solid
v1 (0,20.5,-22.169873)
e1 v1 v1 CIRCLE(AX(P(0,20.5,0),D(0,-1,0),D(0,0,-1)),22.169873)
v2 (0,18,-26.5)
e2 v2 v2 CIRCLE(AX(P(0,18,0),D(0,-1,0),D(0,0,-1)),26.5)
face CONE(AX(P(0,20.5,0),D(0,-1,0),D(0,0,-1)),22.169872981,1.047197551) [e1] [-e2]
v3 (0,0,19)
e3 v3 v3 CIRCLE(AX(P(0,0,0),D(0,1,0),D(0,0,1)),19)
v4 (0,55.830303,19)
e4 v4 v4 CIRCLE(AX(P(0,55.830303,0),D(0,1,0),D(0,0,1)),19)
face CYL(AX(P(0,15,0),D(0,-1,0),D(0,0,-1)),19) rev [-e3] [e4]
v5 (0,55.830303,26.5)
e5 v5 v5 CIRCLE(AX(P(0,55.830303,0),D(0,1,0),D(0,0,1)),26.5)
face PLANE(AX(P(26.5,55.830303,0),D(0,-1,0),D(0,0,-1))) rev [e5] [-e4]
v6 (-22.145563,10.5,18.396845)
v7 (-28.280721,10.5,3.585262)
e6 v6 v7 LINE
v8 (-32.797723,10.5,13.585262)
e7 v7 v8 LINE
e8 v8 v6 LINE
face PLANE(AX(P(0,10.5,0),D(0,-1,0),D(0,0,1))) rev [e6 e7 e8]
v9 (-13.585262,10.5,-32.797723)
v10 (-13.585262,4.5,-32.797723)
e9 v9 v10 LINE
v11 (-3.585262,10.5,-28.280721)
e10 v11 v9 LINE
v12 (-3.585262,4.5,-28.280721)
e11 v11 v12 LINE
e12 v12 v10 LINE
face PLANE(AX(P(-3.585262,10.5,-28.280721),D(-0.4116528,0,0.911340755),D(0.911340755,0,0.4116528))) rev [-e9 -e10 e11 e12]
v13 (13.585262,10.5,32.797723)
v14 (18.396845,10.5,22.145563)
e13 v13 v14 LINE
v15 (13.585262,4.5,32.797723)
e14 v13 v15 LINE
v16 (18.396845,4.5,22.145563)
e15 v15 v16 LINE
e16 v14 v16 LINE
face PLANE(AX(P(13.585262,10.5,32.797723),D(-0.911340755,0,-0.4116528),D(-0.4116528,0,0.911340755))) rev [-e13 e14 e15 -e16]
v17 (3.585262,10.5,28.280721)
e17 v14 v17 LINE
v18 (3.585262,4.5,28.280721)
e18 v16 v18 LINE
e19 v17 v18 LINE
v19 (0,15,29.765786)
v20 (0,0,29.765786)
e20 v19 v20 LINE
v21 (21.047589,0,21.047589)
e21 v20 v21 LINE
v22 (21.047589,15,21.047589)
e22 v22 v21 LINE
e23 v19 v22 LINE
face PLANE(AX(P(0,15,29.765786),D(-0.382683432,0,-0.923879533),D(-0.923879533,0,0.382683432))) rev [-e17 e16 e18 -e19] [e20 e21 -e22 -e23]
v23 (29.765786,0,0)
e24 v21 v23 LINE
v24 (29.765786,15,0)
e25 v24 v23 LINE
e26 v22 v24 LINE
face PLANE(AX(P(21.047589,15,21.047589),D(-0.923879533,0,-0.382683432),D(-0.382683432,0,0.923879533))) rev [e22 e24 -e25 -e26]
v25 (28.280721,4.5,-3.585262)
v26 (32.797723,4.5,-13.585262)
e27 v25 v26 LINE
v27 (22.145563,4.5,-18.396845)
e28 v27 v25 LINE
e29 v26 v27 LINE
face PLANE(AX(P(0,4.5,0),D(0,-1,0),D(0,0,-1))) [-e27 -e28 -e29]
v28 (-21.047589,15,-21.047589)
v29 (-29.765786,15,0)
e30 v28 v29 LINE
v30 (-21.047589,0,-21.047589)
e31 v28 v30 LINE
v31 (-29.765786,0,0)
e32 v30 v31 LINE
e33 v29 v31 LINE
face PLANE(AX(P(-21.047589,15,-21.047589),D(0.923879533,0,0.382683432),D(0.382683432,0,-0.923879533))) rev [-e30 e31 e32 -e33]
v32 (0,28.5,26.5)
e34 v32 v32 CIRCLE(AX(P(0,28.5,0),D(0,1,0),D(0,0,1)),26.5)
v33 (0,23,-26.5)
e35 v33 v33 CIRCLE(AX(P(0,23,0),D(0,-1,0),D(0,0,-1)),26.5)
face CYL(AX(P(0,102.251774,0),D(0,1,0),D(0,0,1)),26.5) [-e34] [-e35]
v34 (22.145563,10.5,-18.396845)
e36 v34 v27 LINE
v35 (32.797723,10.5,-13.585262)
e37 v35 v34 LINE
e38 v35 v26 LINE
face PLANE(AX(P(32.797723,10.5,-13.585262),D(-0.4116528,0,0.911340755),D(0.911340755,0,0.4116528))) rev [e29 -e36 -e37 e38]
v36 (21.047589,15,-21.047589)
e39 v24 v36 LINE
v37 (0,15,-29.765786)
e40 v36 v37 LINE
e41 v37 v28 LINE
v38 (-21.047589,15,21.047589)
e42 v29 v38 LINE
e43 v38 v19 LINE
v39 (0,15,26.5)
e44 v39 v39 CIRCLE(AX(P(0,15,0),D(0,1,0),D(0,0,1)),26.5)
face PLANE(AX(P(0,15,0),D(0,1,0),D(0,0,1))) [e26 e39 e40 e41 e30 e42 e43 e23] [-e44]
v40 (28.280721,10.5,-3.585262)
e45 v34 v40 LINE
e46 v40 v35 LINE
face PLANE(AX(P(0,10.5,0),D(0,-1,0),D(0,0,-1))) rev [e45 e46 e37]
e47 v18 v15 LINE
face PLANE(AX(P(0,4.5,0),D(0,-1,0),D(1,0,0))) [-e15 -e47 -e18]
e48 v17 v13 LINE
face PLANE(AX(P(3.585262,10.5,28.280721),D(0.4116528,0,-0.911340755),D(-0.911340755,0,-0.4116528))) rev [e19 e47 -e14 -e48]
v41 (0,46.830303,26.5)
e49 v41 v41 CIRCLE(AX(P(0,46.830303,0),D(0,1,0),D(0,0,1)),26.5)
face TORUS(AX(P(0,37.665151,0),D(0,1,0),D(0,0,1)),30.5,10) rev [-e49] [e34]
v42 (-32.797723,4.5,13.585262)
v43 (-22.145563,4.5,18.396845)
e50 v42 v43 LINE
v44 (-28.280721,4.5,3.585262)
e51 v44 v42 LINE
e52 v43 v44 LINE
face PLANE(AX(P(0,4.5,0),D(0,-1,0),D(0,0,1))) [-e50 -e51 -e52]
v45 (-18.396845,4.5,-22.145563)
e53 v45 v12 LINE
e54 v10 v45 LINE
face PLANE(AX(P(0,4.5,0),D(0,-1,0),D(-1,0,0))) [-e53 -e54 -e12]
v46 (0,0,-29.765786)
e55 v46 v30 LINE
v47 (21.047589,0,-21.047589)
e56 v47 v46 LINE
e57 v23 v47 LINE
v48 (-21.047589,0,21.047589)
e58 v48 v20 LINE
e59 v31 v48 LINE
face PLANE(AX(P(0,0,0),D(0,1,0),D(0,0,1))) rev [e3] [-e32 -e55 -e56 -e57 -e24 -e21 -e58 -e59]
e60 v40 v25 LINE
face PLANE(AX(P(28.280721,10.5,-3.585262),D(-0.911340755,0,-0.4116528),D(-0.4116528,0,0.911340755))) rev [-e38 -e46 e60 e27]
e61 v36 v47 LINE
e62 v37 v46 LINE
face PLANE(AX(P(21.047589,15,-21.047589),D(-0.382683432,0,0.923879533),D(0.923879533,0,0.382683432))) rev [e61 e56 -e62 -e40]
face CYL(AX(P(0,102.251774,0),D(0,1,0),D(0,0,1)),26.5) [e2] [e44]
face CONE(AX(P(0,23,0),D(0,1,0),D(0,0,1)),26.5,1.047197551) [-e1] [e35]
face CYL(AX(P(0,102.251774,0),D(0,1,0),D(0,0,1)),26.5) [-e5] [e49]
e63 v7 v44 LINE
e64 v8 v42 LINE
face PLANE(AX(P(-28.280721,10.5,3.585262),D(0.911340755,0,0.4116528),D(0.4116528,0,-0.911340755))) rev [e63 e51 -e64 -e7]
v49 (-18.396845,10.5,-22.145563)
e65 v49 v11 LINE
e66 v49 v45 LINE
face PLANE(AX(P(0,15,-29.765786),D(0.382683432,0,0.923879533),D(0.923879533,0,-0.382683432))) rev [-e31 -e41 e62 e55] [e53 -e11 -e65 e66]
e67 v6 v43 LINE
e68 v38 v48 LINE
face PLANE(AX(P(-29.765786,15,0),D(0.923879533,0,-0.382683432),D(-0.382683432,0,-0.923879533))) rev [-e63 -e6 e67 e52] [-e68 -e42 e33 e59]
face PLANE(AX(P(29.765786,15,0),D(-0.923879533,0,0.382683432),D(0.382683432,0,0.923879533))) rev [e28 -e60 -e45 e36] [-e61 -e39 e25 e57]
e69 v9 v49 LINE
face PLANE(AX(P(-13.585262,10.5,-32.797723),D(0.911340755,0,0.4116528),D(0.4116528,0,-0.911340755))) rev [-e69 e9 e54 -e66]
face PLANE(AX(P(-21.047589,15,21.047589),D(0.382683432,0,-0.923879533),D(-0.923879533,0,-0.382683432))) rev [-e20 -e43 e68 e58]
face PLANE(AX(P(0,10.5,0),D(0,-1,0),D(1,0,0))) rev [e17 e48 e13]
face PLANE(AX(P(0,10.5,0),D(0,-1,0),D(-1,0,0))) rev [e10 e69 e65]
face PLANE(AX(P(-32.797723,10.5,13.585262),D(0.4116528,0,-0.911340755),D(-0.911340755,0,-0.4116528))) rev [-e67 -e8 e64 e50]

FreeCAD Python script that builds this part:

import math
import FreeCAD as App
import Part
import Sketcher

V = App.Vector
Q = App.Units.Quantity


def add_polygon(sketch, points):
    """Adds a closed chain of lines whose ends are joined by coincident constraints."""
    first, n = sketch.GeometryCount, len(points)
    for a, b in zip(points, points[1:] + points[:1]):
        sketch.addGeometry(Part.LineSegment(App.Vector(*a, 0), App.Vector(*b, 0)), False)
    for i in range(n):
        sketch.addConstraint(Sketcher.Constraint("Coincident", first + i, 2, first + (i + 1) % n, 1))

doc = App.newDocument("Part")
body = doc.addObject("PartDesign::Body", "Body")

sketch1 = body.newObject("Sketcher::SketchObject", "Sketch")
sketch1.AttachmentSupport = (doc.getObject("XZ_Plane"), [""])
sketch1.MapMode = "FlatFace"
add_polygon(sketch1, [(21, -21), (0, -30), (-21, -21), (-30, 0), (-21, 21), (0, 30), (21, 21), (30, 0)])
sketch1.addGeometry(Part.Circle(V(0, 0, 0), V(0, 0, 1), 19), False)
sketch1.addConstraint([
    Sketcher.Constraint("Coincident", 8, 3, -1, 1),
    Sketcher.Constraint("Symmetric", 0, 2, 4, 2, -1, 1),
    Sketcher.Constraint("Symmetric", 1, 2, 5, 2, -1, 1),
    Sketcher.Constraint("Symmetric", 2, 2, 6, 2, -1, 1),
    Sketcher.Constraint("Symmetric", 3, 2, 7, 2, -1, 1),
    Sketcher.Constraint("Symmetric", 3, 2, 5, 2, -2),
    Sketcher.Constraint("PointOnObject", 0, 2, -2),
    Sketcher.Constraint("PointOnObject", 2, 2, -1),
    Sketcher.Constraint("Perpendicular", 0, 2),
    Sketcher.Constraint("Equal", 1, 2),
    Sketcher.Constraint("Diameter", 8, 38.0),
    Sketcher.Constraint("Angle", 0, Q("-157.5 deg")),
    Sketcher.Constraint("DistanceX", 1, 2, -1, 1, 21.047589),
])
pad1 = body.newObject("PartDesign::Pad", "Pad")
pad1.Profile = sketch1
pad1.Length = 15
pad1.Reversed = True

sketch2 = body.newObject("Sketcher::SketchObject", "Sketch001")
sketch2.AttachmentSupport = (doc.getObject("XY_Plane"), [""])
sketch2.MapMode = "FlatFace"
sketch2.addGeometry([
    Part.LineSegment(V(26, 47, 0), V(26, 56, 0)),
    Part.LineSegment(V(26, 56, 0), V(0, 56, 0)),
    Part.LineSegment(V(0, 56, 0), V(0, 15, 0)),
    Part.LineSegment(V(0, 15, 0), V(26, 15, 0)),
    Part.LineSegment(V(26, 15, 0), V(26, 28, 0)),
    Part.ArcOfCircle(Part.Circle(V(30, 38, 0), V(0, 0, 1), 10), math.radians(114), math.radians(246)),
], False)
sketch2.addConstraint([
    Sketcher.Constraint("Coincident", 0, 2, 1, 1),
    Sketcher.Constraint("Coincident", 1, 2, 2, 1),
    Sketcher.Constraint("Coincident", 2, 2, 3, 1),
    Sketcher.Constraint("Coincident", 3, 2, 4, 1),
    Sketcher.Constraint("Coincident", 4, 2, 5, 2),
    Sketcher.Constraint("Coincident", 5, 1, 0, 1),
    Sketcher.Constraint("Vertical", 0),
    Sketcher.Constraint("Horizontal", 1),
    Sketcher.Constraint("Vertical", 2),
    Sketcher.Constraint("Horizontal", 3),
    Sketcher.Constraint("Vertical", 4),
    Sketcher.Constraint("PointOnObject", 1, 2, -2),
    Sketcher.Constraint("Vertical", 0, 2, 3, 2),
    Sketcher.Constraint("Radius", 5, 10.0),
    Sketcher.Constraint("DistanceY", 0, 1, 0, 2, 9.0),
    Sketcher.Constraint("DistanceX", 1, 2, 1, 1, 26.5),
    Sketcher.Constraint("DistanceY", 4, 1, 4, 2, 13.5),
    Sketcher.Constraint("DistanceY", -1, 1, 2, 2, 15.0),
    Sketcher.Constraint("DistanceX", 0, 2, 5, 3, 4.0),
])
revolution = body.newObject("PartDesign::Revolution", "Revolution")
revolution.Profile = sketch2
revolution.ReferenceAxis = (sketch2, ["V_Axis"])
revolution.Angle = 360

sketch3 = body.newObject("Sketcher::SketchObject", "Sketch002")
sketch3.AttachmentSupport = (doc.getObject("XZ_Plane"), [""])
sketch3.MapMode = "FlatFace"
sketch3.AttachmentOffset = App.Placement(V(0, 0, -55.830303), App.Rotation())
sketch3.addGeometry(Part.Circle(V(0, 0, 0), V(0, 0, 1), 19), False)
sketch3.addConstraint([
    Sketcher.Constraint("Coincident", 0, 3, -1, 1),
    Sketcher.Constraint("Diameter", 0, 38.0),
])
pocket1 = body.newObject("PartDesign::Pocket", "Pocket")
pocket1.Profile = sketch3
pocket1.Type = "ThroughAll"
pocket1.Reversed = True

sketch4 = body.newObject("Sketcher::SketchObject", "Sketch003")
sketch4.AttachmentSupport = (doc.getObject("XZ_Plane"), [""])
sketch4.MapMode = "FlatFace"
sketch4.AttachmentOffset = App.Placement(V(0, 0, -7.5), App.Rotation())
add_polygon(sketch4, [(22, -18), (28, -4), (33, -14)])
sketch4.addConstraint([
    Sketcher.Constraint("Perpendicular", 1, 2),
    Sketcher.Constraint("Angle", 0, Q("67.5 deg")),
    Sketcher.Constraint("DistanceY", 1, 2, 0, 2, 10.0),
    Sketcher.Constraint("DistanceX", 0, 2, 1, 2, 4.517002),
    Sketcher.Constraint("DistanceX", -1, 1, 0, 2, 28.280721),
    Sketcher.Constraint("DistanceY", 0, 2, -1, 1, 3.585262),
])
pad2 = body.newObject("PartDesign::Pad", "Pad001")
pad2.Profile = sketch4
pad2.Length = 6
pad2.Midplane = True

sketch5 = body.newObject("Sketcher::SketchObject", "Sketch004")
sketch5.AttachmentSupport = (doc.getObject("XY_Plane"), [""])
sketch5.MapMode = "FlatFace"
add_polygon(sketch5, [(26, 23), (22, 20), (26, 18)])
sketch5.addConstraint([
    Sketcher.Constraint("Vertical", 2),
    Sketcher.Constraint("Equal", 0, 1),
    Sketcher.Constraint("DistanceY", 2, 1, 2, 2, 5.0),
    Sketcher.Constraint("Angle", 0, Q("-150 deg")),
    Sketcher.Constraint("DistanceY", -1, 1, 1, 2, 18.0),
    Sketcher.Constraint("DistanceX", -1, 1, 1, 2, 26.5),
])
groove = body.newObject("PartDesign::Groove", "Groove")
groove.Profile = sketch5
groove.ReferenceAxis = (sketch5, ["V_Axis"])
groove.Angle = 360
doc.recompute()

polarpattern = body.newObject("PartDesign::PolarPattern", "PolarPattern")
polarpattern.Originals = [pad2]
polarpattern.Axis = (doc.getObject("Y_Axis"), [""])
polarpattern.Angle = 360
polarpattern.Occurrences = 4
body.Tip = polarpattern

doc.recompute()
